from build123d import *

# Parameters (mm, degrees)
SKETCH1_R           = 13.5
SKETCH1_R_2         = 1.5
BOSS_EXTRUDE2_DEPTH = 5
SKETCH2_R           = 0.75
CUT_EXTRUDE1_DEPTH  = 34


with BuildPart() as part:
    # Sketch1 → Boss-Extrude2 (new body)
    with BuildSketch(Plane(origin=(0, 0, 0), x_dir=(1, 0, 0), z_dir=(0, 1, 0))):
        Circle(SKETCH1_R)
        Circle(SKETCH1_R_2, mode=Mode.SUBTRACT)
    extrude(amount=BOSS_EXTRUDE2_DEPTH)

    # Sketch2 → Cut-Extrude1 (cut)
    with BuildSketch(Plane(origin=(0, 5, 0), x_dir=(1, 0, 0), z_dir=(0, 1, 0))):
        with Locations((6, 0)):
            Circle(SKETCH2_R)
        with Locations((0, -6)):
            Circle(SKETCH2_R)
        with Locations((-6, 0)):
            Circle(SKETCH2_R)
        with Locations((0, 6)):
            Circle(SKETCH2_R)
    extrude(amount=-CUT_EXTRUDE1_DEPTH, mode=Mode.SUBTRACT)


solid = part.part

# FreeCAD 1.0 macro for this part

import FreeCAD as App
import Part
import Sketcher

doc = App.newDocument("Part")
body = doc.addObject("PartDesign::Body", "Body")

# Sketch on XZ plane
sketch1 = body.newObject("Sketcher::SketchObject", "Sketch")
sketch1.AttachmentSupport = (doc.getObject("XZ_Plane"), [""])
sketch1.MapMode = "FlatFace"
sketch1.addGeometry(Part.Circle(App.Vector(0, 0, 0), App.Vector(0, 0, 1), 13.5), False)
sketch1.addGeometry(Part.Circle(App.Vector(0, 0, 0), App.Vector(0, 0, 1), 1.5), False)
sketch1.addConstraint(Sketcher.Constraint("Coincident", 0, 3, -1, 1))
sketch1.addConstraint(Sketcher.Constraint("Coincident", 1, 3, -1, 1))
sketch1.addConstraint(Sketcher.Constraint("Diameter", 0, 27.0))
sketch1.addConstraint(Sketcher.Constraint("Diameter", 1, 3.0))
pad1 = body.newObject("PartDesign::Pad", "Pad")
pad1.Profile = sketch1
pad1.Length = 5
pad1.Reversed = True

# Sketch on XZ plane
sketch2 = body.newObject("Sketcher::SketchObject", "Sketch001")
sketch2.AttachmentSupport = (doc.getObject("XZ_Plane"), [""])
sketch2.MapMode = "FlatFace"
sketch2.AttachmentOffset = App.Placement(App.Vector(0, 0, -5), App.Rotation())
sketch2.addGeometry(Part.Circle(App.Vector(6, 0, 0), App.Vector(0, 0, 1), 0.75), False)
sketch2.addGeometry(Part.Circle(App.Vector(0, 6, 0), App.Vector(0, 0, 1), 0.75), False)
sketch2.addGeometry(Part.Circle(App.Vector(-6, 0, 0), App.Vector(0, 0, 1), 0.75), False)
sketch2.addGeometry(Part.Circle(App.Vector(0, -6, 0), App.Vector(0, 0, 1), 0.75), False)
sketch2.addConstraint(Sketcher.Constraint("Equal", 0, 1))
sketch2.addConstraint(Sketcher.Constraint("Equal", 1, 2))
sketch2.addConstraint(Sketcher.Constraint("Equal", 2, 3))
sketch2.addConstraint(Sketcher.Constraint("Symmetric", 0, 3, 2, 3, -1, 1))
sketch2.addConstraint(Sketcher.Constraint("Symmetric", 1, 3, 3, 3, -1, 1))
sketch2.addConstraint(Sketcher.Constraint("PointOnObject", 0, 3, -1))
sketch2.addConstraint(Sketcher.Constraint("PointOnObject", 1, 3, -2))
sketch2.addConstraint(Sketcher.Constraint("Diameter", 0, 1.5))
sketch2.addConstraint(Sketcher.Constraint("DistanceX", -1, 1, 0, 3, 6.0))
sketch2.addConstraint(Sketcher.Constraint("DistanceY", -1, 1, 1, 3, 6.0))
pocket1 = body.newObject("PartDesign::Pocket", "Pocket")
pocket1.Profile = sketch2
pocket1.Length = 34
pocket1.Reversed = True

doc.recompute()
